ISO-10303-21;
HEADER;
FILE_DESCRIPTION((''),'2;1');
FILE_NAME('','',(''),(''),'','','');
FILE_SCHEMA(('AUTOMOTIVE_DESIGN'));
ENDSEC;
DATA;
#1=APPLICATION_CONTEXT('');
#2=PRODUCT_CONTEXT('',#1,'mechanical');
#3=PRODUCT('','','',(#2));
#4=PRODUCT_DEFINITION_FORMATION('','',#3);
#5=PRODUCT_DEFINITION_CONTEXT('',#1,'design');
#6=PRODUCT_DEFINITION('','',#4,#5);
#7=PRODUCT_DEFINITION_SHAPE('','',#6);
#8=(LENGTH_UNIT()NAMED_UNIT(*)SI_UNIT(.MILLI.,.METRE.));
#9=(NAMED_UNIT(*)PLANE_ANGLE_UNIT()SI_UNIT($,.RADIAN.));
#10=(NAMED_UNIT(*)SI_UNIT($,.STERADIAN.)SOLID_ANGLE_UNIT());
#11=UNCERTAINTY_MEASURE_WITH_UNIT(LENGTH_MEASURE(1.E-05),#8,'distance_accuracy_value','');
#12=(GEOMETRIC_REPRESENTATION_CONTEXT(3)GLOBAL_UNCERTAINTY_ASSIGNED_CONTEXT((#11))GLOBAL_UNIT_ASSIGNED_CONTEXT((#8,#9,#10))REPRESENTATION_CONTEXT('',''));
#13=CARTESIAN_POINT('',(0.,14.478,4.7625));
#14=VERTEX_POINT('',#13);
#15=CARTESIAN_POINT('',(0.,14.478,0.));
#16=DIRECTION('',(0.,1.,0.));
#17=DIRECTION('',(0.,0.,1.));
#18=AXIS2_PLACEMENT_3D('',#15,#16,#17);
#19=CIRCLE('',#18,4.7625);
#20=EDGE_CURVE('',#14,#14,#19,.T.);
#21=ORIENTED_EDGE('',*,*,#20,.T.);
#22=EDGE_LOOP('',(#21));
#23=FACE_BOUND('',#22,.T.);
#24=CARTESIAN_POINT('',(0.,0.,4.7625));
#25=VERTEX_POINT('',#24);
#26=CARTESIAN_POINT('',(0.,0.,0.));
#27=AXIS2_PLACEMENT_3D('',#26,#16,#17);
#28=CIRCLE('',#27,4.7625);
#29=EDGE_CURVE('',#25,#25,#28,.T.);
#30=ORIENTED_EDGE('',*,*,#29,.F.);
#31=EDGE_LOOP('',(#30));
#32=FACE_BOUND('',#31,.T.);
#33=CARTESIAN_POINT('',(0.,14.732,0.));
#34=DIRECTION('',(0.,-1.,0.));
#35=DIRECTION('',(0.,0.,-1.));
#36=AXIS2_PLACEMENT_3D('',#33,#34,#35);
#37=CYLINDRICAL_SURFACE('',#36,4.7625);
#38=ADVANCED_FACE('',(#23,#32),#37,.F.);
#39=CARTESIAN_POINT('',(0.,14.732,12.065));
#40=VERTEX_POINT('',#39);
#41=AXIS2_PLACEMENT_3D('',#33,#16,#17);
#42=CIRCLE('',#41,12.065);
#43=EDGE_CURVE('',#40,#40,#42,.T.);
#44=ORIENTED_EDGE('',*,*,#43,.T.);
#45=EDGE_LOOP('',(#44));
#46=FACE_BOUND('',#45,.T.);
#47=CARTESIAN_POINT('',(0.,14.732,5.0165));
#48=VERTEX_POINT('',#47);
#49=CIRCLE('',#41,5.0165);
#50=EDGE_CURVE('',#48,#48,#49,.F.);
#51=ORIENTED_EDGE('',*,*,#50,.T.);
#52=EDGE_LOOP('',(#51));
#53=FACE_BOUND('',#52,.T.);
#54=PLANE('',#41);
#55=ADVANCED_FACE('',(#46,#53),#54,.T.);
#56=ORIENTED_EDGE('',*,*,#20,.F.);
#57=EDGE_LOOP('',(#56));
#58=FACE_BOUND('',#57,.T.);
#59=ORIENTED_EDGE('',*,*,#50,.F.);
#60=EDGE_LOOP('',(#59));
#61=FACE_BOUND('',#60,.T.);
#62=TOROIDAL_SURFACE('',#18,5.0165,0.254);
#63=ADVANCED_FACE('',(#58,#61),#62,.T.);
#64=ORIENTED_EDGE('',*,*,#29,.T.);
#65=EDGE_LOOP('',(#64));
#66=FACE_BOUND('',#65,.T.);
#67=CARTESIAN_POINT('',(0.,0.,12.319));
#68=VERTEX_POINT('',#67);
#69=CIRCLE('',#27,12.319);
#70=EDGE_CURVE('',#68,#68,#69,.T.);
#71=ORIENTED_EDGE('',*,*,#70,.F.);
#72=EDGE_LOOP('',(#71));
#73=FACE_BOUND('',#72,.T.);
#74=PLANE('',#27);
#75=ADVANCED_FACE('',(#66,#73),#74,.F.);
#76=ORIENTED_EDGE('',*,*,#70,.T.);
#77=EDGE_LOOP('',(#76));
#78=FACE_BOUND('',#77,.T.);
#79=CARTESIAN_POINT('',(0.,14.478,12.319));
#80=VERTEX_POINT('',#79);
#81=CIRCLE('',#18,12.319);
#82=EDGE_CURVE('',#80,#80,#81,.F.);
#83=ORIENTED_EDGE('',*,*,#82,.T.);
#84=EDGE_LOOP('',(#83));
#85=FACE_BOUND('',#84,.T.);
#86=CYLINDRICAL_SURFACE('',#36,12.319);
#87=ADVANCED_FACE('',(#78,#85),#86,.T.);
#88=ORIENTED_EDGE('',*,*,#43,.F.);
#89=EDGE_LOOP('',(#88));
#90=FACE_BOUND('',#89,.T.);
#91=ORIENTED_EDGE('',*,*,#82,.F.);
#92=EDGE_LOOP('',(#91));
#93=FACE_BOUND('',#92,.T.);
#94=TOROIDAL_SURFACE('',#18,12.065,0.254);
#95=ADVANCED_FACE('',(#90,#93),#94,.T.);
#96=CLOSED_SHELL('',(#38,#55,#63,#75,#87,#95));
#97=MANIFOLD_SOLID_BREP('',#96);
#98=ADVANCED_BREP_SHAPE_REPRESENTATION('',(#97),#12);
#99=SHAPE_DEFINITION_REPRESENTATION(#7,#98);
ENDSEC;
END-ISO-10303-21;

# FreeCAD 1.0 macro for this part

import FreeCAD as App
import Part
import Sketcher
Q = App.Units.Quantity


def edges_at(feature, points):
    """Names of the edges that pass closest to the given points."""
    edges = feature.Shape.Edges
    near = lambda p: min(range(len(edges)), key=lambda i: edges[i].distToShape(Part.Vertex(*p))[0])
    return sorted({f"Edge{near(p) + 1}" for p in points})

doc = App.newDocument("Part")
body = doc.addObject("PartDesign::Body", "Body")

sketch1 = body.newObject("Sketcher::SketchObject", "Sketch")
sketch1.AttachmentSupport = (doc.getObject("XZ_Plane"), [""])
sketch1.MapMode = "FlatFace"
sketch1.addGeometry([
    Part.Circle(App.Vector(0, 0, 0), App.Vector(0, 0, 1), 12.3),
    Part.Circle(App.Vector(0, 0, 0), App.Vector(0, 0, 1), 4.8),
], False)
sketch1.addConstraint([
    Sketcher.Constraint("Coincident", 0, 3, -1, 1),
    Sketcher.Constraint("Coincident", 1, 3, -1, 1),
    Sketcher.Constraint("Diameter", 0, Q("0.97 in")),
    Sketcher.Constraint("Diameter", 1, Q("0.375 in")),
])
pad1 = body.newObject("PartDesign::Pad", "Pad")
pad1.Profile = sketch1
pad1.Length = Q("0.58 in")
pad1.Reversed = True
doc.recompute()

fillet = body.newObject("PartDesign::Fillet", "Fillet")
fillet.Base = (pad1, edges_at(pad1, [(-12.319, 14.732, 0), (-4.763, 14.732, 0)]))
fillet.Radius = Q("0.01 in")

doc.recompute()
